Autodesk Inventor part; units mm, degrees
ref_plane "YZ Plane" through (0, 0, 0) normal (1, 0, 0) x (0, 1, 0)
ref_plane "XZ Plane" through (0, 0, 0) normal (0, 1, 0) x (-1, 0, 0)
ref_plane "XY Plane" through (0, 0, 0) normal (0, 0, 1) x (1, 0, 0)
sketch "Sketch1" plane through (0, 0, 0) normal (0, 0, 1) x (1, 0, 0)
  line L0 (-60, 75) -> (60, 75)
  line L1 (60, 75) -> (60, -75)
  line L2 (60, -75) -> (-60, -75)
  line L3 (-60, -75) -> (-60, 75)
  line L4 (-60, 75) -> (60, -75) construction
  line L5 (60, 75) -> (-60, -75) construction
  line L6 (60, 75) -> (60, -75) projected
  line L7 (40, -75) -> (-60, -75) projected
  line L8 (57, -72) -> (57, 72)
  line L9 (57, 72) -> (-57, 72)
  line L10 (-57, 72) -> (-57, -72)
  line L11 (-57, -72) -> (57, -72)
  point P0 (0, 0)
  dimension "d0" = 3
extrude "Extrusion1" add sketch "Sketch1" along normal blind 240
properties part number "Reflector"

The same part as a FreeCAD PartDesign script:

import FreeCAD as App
import Part
import Sketcher
from FreeCAD import Vector
Q = App.Units.Quantity

doc = App.newDocument("Part")
params = doc.addObject("Spreadsheet::Sheet", "Params")
for row, (alias, value) in enumerate([
    ("sketch1_width", "120 mm"),
    ("sketch1_height", "150 mm"),
    ("pad1_length", "240 mm"),
], start=1):
    params.set(f"A{row}", alias)
    params.set(f"B{row}", "=" + value)
    params.setAlias(f"B{row}", alias)

body = doc.addObject("PartDesign::Body", "Body")

# Sketch on XY plane
sketch1 = body.newObject("Sketcher::SketchObject", "Sketch")
sketch1.AttachmentSupport = (doc.getObject("XY_Plane"), [""])
sketch1.MapMode = "FlatFace"
sketch1.addGeometry([
    Part.LineSegment(Vector(60, 75, 0), Vector(-60, 75, 0)),  # 0
    Part.LineSegment(Vector(-60, 75, 0), Vector(-60, -75, 0)),  # 1
    Part.LineSegment(Vector(-60, -75, 0), Vector(60, -75, 0)),  # 2
    Part.LineSegment(Vector(60, -75, 0), Vector(60, 75, 0)),  # 3
    Part.LineSegment(Vector(57, 72, 0), Vector(57, -72, 0)),  # 4
    Part.LineSegment(Vector(57, -72, 0), Vector(-57, -72, 0)),  # 5
    Part.LineSegment(Vector(-57, -72, 0), Vector(-57, 72, 0)),  # 6
    Part.LineSegment(Vector(-57, 72, 0), Vector(57, 72, 0)),  # 7
], False)
sketch1.addConstraint([
    Sketcher.Constraint("Coincident", 0, 2, 1, 1),
    Sketcher.Constraint("Coincident", 1, 2, 2, 1),
    Sketcher.Constraint("Coincident", 2, 2, 3, 1),
    Sketcher.Constraint("Coincident", 3, 2, 0, 1),
    Sketcher.Constraint("Coincident", 4, 2, 5, 1),
    Sketcher.Constraint("Coincident", 5, 2, 6, 1),
    Sketcher.Constraint("Coincident", 6, 2, 7, 1),
    Sketcher.Constraint("Coincident", 7, 2, 4, 1),
    Sketcher.Constraint("Horizontal", 0),
    Sketcher.Constraint("Vertical", 1),
    Sketcher.Constraint("Horizontal", 2),
    Sketcher.Constraint("Vertical", 3),
    Sketcher.Constraint("Vertical", 4),
    Sketcher.Constraint("Horizontal", 5),
    Sketcher.Constraint("Vertical", 6),
    Sketcher.Constraint("Horizontal", 7),
    Sketcher.Constraint("Symmetric", 0, 2, 2, 2, -1, 1),
    Sketcher.Constraint("Symmetric", 4, 2, 6, 2, -1, 1),
    Sketcher.Constraint("DistanceX", 4, 2, 2, 2, Q("3 mm")),
    Sketcher.Constraint("DistanceY", 2, 2, 4, 2, Q("3 mm")),
    Sketcher.Constraint("DistanceX", 0, 2, 0, 1, Q("120 mm")),
    Sketcher.Constraint("DistanceY", 1, 2, 1, 1, Q("150 mm")),
])
sketch1.setExpression("Constraints[20]", "Params.sketch1_width")
sketch1.setExpression("Constraints[21]", "Params.sketch1_height")
pad1 = body.newObject("PartDesign::Pad", "Pad")
pad1.Profile = sketch1
pad1.setExpression("Length", "Params.pad1_length")

doc.recompute()
